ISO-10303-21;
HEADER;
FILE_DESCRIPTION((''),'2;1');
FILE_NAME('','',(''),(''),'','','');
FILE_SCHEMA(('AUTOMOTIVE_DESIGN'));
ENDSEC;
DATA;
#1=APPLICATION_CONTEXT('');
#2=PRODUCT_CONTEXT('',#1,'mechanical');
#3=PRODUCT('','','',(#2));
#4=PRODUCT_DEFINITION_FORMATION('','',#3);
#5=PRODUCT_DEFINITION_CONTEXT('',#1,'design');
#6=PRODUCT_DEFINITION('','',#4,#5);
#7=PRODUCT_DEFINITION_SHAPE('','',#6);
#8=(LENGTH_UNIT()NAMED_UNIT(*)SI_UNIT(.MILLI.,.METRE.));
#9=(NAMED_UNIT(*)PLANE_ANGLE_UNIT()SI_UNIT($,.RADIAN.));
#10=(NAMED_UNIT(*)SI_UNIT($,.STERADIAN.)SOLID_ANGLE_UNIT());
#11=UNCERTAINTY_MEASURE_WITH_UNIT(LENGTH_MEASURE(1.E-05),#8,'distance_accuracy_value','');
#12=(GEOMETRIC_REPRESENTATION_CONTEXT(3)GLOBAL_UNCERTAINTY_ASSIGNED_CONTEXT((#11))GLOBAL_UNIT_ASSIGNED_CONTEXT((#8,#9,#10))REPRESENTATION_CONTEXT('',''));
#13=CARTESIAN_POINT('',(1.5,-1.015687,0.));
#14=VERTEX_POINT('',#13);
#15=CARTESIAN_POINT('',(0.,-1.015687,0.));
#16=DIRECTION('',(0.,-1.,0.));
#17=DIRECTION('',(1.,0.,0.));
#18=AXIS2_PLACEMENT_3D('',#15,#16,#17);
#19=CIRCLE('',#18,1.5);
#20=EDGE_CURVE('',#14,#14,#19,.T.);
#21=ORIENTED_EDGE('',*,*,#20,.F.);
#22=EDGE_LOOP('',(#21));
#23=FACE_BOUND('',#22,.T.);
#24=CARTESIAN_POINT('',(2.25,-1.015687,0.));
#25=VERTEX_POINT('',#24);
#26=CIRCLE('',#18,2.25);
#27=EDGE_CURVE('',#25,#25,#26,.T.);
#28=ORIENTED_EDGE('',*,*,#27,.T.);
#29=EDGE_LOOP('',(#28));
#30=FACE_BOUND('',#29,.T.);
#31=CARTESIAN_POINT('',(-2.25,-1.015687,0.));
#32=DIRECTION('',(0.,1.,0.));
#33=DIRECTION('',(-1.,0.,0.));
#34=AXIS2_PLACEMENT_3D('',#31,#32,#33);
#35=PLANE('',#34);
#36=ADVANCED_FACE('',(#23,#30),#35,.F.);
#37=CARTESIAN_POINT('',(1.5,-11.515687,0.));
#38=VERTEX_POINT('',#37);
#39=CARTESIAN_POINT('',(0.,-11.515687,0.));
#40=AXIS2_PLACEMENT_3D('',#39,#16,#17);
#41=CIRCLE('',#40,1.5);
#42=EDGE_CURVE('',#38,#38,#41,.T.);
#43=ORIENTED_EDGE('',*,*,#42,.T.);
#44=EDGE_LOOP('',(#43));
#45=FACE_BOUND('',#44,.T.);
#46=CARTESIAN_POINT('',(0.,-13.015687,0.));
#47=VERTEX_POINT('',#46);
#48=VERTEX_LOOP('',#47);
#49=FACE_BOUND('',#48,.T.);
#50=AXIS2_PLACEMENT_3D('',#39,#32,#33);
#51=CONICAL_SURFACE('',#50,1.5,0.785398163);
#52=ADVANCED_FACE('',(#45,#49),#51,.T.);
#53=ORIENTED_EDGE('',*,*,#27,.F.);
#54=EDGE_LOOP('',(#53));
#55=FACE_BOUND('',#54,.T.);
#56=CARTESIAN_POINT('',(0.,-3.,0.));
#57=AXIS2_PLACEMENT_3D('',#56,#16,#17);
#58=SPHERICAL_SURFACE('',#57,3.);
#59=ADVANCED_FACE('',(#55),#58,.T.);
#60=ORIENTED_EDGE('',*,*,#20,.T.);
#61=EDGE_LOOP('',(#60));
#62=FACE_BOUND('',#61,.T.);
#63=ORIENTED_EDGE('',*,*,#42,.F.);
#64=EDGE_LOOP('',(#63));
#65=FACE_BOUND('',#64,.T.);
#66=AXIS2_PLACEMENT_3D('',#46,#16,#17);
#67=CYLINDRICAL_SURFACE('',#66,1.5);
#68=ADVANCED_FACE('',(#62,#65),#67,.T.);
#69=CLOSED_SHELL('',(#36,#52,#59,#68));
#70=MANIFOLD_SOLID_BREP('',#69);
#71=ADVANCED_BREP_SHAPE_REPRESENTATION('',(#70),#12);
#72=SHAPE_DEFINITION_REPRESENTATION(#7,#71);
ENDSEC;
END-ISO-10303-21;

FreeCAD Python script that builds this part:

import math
import FreeCAD as App
import Part
import Sketcher
from FreeCAD import Vector
Q = App.Units.Quantity

doc = App.newDocument("Part")
body = doc.addObject("PartDesign::Body", "Body")

sketch1 = body.newObject("Sketcher::SketchObject", "Sketch")
sketch1.AttachmentSupport = (doc.getObject("XY_Plane"), [""])
sketch1.MapMode = "FlatFace"
sketch1.addGeometry(Part.LineSegment(Vector(-1.5, -1.015687, 0), Vector(-1.5, -11.515687, 0)), False)
sketch1.addGeometry(Part.LineSegment(Vector(-1.5, -11.515687, 0), Vector(0, -13.015687, 0)), False)
sketch1.addGeometry(Part.LineSegment(Vector(0, -13.015687, 0), Vector(0, 0, 0)), False)
sketch1.addGeometry(Part.ArcOfCircle(Part.Circle(Vector(0, -3, 0), Vector(0, 0, 1), 3), math.radians(90), math.radians(138.590378)), False)
sketch1.addGeometry(Part.LineSegment(Vector(-2.25, -1.015687, 0), Vector(-1.5, -1.015687, 0)), False)
sketch1.addConstraint(Sketcher.Constraint("Coincident", 0, 2, 1, 1))
sketch1.addConstraint(Sketcher.Constraint("Coincident", 1, 2, 2, 1))
sketch1.addConstraint(Sketcher.Constraint("Coincident", 2, 2, 3, 1))
sketch1.addConstraint(Sketcher.Constraint("Coincident", 3, 2, 4, 1))
sketch1.addConstraint(Sketcher.Constraint("Coincident", 4, 2, 0, 1))
sketch1.addConstraint(Sketcher.Constraint("Vertical", 0))
sketch1.addConstraint(Sketcher.Constraint("Vertical", 2))
sketch1.addConstraint(Sketcher.Constraint("Horizontal", 4))
sketch1.addConstraint(Sketcher.Constraint("Coincident", 2, 2, -1, 1))
sketch1.addConstraint(Sketcher.Constraint("PointOnObject", 3, 3, -2))
sketch1.addConstraint(Sketcher.Constraint("Radius", 3, Q("3 mm")))
sketch1.addConstraint(Sketcher.Constraint("Angle", 1, Q("-45 deg")))
sketch1.addConstraint(Sketcher.Constraint("DistanceY", 0, 2, 0, 1, Q("10.5 mm")))
sketch1.addConstraint(Sketcher.Constraint("DistanceY", 1, 2, 3, 2, Q("12 mm")))
sketch1.addConstraint(Sketcher.Constraint("DistanceX", 4, 1, 4, 2, Q("0.75 mm")))
revolution = body.newObject("PartDesign::Revolution", "Revolution")
revolution.Profile = sketch1
revolution.ReferenceAxis = (sketch1, ["V_Axis"])
revolution.Angle = 360

doc.recompute()
